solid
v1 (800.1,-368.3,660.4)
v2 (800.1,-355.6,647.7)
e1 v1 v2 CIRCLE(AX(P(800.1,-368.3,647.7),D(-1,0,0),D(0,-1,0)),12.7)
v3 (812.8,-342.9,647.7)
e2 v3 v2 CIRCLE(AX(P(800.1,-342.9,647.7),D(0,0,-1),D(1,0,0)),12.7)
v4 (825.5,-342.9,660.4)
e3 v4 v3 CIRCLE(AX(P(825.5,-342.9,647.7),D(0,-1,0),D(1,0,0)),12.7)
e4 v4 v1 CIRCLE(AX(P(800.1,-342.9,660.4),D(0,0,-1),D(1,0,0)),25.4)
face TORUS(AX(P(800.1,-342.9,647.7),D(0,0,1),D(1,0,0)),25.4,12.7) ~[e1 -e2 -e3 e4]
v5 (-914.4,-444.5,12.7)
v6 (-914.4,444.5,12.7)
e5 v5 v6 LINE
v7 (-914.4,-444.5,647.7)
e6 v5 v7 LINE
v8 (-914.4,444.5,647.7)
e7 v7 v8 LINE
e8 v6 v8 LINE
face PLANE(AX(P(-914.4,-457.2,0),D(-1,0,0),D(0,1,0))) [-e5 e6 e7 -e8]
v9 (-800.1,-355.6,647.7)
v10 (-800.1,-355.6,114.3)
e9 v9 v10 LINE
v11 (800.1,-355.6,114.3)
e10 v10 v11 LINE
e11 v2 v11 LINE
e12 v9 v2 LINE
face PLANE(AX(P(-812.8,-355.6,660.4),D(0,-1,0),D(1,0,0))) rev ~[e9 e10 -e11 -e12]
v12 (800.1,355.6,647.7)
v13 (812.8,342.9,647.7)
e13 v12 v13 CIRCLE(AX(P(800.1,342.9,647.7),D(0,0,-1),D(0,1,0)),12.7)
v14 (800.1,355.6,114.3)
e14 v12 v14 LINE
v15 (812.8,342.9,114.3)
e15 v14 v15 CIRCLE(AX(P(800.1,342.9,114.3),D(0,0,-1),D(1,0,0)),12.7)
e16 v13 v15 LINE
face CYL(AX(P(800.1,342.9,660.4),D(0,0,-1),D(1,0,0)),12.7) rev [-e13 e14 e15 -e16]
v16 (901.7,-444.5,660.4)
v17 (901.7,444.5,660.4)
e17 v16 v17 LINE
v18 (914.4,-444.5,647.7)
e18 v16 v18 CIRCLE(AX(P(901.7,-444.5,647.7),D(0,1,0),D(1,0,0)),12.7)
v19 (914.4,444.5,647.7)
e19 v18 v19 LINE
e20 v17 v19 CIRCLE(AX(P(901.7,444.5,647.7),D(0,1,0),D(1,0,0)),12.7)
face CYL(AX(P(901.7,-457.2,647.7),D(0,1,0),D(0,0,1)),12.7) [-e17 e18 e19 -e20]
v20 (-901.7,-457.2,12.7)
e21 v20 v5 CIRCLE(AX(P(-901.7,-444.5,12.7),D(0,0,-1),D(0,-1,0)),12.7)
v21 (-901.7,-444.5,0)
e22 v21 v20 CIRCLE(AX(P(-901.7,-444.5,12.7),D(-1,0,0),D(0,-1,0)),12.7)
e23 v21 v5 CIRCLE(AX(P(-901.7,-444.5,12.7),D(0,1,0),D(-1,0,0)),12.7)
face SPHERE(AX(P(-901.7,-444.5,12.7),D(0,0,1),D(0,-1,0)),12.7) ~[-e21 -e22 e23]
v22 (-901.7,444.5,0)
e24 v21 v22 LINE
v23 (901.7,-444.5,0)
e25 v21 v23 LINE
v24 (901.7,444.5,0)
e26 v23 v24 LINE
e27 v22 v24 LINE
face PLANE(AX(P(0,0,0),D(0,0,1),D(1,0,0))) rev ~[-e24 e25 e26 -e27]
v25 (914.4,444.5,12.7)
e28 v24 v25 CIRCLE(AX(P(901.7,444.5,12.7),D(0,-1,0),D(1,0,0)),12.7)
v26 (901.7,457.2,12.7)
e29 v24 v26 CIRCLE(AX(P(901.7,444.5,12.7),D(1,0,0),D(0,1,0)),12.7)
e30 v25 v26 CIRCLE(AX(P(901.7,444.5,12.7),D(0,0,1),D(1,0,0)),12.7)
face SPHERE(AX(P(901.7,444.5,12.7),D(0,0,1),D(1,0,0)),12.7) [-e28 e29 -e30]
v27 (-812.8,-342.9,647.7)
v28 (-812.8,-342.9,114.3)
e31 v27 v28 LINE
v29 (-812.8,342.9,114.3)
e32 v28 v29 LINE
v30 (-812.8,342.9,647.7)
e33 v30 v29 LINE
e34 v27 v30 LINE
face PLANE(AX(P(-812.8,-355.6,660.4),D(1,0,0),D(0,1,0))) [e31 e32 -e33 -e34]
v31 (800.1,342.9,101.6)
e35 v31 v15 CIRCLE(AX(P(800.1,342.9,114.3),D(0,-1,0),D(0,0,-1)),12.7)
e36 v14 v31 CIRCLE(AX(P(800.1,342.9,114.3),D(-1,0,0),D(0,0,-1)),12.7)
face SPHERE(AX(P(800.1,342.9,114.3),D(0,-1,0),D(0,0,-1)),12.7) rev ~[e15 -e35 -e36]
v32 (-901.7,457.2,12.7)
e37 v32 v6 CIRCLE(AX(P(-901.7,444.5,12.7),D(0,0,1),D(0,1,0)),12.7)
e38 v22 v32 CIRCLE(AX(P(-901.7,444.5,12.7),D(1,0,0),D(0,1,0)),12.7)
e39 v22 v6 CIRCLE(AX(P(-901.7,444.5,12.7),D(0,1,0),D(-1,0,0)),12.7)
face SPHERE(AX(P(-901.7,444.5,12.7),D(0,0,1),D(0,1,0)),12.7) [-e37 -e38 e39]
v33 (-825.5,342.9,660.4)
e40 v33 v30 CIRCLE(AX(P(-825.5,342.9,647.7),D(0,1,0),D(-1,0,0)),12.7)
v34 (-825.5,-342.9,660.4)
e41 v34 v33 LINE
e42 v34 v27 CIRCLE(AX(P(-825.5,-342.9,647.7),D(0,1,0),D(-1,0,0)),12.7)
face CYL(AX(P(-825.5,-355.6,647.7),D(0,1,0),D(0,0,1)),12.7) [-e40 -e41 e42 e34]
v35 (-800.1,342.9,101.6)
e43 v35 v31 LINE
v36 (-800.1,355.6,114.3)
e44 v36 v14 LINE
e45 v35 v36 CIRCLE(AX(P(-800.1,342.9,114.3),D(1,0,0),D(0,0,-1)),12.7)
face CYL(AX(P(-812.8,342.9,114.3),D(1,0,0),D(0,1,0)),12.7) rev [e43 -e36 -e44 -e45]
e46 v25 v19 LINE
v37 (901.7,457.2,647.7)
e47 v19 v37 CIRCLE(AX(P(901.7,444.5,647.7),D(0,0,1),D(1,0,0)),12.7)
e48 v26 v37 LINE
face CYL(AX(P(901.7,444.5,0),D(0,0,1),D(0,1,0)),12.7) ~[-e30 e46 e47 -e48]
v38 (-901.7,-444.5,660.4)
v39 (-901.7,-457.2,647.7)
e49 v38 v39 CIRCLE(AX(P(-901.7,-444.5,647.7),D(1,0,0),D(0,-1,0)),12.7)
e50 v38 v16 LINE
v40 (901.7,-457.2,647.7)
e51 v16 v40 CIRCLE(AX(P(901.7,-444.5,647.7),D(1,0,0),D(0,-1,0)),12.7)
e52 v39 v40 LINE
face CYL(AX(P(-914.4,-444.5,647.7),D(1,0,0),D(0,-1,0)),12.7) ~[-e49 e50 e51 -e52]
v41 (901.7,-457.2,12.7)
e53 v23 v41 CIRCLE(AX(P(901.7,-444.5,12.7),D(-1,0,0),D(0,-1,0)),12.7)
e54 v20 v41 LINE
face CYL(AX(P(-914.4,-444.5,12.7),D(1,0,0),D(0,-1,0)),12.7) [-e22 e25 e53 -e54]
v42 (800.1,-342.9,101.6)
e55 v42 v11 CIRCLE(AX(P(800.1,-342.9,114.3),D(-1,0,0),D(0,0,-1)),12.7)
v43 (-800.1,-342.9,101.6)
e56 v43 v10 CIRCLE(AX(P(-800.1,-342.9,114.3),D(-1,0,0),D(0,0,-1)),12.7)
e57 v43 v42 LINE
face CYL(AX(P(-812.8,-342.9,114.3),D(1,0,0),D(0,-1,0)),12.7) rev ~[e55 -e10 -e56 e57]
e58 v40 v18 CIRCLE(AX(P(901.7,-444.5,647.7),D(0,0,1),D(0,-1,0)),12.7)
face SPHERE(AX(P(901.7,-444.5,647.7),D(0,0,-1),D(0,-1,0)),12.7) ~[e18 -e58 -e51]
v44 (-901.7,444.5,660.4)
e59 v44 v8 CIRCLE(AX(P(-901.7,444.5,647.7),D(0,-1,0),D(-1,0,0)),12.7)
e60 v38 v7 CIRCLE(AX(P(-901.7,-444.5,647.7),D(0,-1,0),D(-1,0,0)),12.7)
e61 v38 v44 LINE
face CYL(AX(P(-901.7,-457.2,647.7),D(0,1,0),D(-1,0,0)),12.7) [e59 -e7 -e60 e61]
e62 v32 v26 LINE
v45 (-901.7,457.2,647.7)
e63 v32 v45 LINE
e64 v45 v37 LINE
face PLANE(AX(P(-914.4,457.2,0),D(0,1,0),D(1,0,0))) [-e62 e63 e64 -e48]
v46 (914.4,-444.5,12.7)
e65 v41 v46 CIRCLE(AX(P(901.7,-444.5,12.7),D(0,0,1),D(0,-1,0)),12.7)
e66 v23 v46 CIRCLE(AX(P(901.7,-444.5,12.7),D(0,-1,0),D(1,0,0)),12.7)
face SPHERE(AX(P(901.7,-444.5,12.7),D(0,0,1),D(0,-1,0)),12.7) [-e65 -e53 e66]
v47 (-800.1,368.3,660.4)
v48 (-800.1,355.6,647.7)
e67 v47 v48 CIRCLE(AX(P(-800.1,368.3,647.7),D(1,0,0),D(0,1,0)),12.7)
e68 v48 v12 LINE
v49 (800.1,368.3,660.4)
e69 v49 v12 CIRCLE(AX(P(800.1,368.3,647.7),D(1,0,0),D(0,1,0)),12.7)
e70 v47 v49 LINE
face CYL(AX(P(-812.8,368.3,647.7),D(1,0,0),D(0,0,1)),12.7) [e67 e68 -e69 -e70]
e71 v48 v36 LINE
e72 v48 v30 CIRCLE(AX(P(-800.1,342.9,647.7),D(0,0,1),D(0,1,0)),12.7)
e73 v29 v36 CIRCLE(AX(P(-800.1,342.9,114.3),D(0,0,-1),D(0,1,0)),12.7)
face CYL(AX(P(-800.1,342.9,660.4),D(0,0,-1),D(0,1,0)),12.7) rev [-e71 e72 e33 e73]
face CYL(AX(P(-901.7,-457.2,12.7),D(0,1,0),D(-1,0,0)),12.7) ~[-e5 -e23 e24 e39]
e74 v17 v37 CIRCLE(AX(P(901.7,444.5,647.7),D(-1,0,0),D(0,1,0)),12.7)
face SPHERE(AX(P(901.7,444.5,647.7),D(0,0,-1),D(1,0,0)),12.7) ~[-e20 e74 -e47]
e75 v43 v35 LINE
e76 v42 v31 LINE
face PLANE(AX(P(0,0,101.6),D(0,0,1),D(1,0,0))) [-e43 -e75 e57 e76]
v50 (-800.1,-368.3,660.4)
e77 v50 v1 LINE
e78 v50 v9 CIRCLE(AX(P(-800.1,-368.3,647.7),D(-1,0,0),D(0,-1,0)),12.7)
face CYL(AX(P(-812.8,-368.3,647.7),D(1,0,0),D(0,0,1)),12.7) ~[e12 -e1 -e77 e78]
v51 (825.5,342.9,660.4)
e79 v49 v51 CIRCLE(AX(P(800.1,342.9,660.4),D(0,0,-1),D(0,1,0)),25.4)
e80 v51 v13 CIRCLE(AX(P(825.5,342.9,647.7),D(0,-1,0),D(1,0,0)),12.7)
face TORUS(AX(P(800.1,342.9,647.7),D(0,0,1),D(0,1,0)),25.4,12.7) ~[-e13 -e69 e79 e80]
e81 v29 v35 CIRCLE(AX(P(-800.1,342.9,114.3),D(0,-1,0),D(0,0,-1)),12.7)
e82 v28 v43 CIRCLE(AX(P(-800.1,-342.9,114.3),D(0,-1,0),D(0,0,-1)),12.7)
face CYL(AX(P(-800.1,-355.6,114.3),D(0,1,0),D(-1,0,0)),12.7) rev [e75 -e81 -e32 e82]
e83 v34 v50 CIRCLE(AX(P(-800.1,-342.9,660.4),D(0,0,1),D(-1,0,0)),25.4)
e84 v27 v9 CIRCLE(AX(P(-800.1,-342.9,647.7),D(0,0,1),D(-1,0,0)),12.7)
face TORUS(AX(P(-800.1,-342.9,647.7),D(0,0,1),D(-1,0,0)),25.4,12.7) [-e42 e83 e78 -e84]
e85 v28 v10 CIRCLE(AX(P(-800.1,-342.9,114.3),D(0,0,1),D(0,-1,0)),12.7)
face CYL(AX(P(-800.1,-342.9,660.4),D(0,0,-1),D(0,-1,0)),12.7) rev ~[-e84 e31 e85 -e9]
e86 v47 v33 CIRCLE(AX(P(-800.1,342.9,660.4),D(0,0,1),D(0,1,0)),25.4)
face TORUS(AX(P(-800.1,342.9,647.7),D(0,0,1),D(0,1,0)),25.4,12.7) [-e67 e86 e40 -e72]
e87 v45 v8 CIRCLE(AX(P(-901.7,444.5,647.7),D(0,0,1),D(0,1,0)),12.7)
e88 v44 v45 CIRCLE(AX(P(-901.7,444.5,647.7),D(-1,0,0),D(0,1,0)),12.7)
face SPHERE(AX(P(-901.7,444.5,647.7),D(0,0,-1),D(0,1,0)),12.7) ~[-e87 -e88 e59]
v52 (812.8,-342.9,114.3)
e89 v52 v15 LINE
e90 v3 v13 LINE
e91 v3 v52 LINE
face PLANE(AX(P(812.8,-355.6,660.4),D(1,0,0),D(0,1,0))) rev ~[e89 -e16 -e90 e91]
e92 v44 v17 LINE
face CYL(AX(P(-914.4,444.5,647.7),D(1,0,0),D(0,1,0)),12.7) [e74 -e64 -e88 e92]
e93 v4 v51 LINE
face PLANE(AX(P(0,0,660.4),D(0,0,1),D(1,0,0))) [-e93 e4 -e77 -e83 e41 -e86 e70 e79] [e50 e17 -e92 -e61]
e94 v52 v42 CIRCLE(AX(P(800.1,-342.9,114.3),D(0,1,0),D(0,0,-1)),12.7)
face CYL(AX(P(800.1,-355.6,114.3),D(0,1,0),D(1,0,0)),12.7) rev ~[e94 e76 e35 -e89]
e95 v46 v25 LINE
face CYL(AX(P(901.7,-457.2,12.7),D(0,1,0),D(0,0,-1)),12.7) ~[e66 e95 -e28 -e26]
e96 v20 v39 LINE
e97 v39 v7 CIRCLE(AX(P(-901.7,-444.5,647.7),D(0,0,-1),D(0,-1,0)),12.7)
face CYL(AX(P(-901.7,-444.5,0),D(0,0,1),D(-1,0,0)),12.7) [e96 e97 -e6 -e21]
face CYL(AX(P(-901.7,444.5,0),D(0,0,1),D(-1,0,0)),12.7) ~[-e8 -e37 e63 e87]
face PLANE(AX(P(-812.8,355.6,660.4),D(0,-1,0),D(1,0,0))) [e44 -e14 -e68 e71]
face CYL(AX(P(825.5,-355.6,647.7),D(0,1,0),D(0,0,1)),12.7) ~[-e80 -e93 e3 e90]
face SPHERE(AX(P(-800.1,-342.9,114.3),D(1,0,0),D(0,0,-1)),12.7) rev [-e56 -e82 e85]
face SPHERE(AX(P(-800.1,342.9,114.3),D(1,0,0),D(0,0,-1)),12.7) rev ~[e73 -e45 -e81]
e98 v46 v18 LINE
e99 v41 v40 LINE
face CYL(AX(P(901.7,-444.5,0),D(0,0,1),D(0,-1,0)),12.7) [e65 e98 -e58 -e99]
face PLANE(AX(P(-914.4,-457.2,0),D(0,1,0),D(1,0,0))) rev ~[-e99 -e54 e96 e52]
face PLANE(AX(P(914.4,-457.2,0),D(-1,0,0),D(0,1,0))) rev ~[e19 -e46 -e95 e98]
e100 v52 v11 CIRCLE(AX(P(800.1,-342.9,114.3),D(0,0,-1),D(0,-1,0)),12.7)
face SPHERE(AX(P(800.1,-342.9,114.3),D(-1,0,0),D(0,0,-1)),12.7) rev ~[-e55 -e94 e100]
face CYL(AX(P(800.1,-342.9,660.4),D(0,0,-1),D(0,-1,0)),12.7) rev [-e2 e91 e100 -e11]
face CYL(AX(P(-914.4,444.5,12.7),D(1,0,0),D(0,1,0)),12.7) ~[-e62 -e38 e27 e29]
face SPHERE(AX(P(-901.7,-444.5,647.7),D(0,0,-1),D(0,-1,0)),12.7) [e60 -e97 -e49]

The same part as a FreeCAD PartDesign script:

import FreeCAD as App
import Part
import Sketcher
from FreeCAD import Vector
Q = App.Units.Quantity


def add_polygon(sketch, points):
    """Adds a closed chain of lines whose ends are joined by coincident constraints."""
    first, n = sketch.GeometryCount, len(points)
    for a, b in zip(points, points[1:] + points[:1]):
        sketch.addGeometry(Part.LineSegment(App.Vector(*a, 0), App.Vector(*b, 0)), False)
    for i in range(n):
        sketch.addConstraint(Sketcher.Constraint("Coincident", first + i, 2, first + (i + 1) % n, 1))

doc = App.newDocument("Part")
body = doc.addObject("PartDesign::Body", "Body")

# Sketch on XY plane
sketch1 = body.newObject("Sketcher::SketchObject", "Sketch")
sketch1.AttachmentSupport = (doc.getObject("XY_Plane"), [""])
sketch1.MapMode = "FlatFace"
add_polygon(sketch1, [(-914, 457), (-914, -457), (914, -457), (914, 457)])  # lines 0-3
sketch1.addConstraint([
    Sketcher.Constraint("Vertical", 0),
    Sketcher.Constraint("Horizontal", 1),
    Sketcher.Constraint("Vertical", 2),
    Sketcher.Constraint("Horizontal", 3),
    Sketcher.Constraint("Symmetric", 0, 2, 2, 2, -1, 1),
    Sketcher.Constraint("DistanceX", 1, 1, 1, 2, Q("72 in")),
    Sketcher.Constraint("DistanceY", 0, 2, 0, 1, Q("36 in")),
])
pad1 = body.newObject("PartDesign::Pad", "Pad")
pad1.Profile = sketch1
pad1.Length = Q("26 in")

# Sketch on XY plane
sketch2 = body.newObject("Sketcher::SketchObject", "Sketch001")
sketch2.AttachmentSupport = (doc.getObject("XY_Plane"), [""])
sketch2.MapMode = "FlatFace"
sketch2.AttachmentOffset = App.Placement(Vector(0, 0, 26 * 25.4), App.Rotation())
add_polygon(sketch2, [(-813, 356), (-813, -356), (813, -356), (813, 356)])  # lines 0-3
sketch2.addConstraint([
    Sketcher.Constraint("Vertical", 0),
    Sketcher.Constraint("Horizontal", 1),
    Sketcher.Constraint("Vertical", 2),
    Sketcher.Constraint("Horizontal", 3),
    Sketcher.Constraint("Symmetric", 0, 2, 2, 2, -1, 1),
    Sketcher.Constraint("DistanceX", 1, 1, 1, 2, Q("64 in")),
    Sketcher.Constraint("DistanceY", 0, 2, 0, 1, Q("28 in")),
])
pocket1 = body.newObject("PartDesign::Pocket", "Pocket")
pocket1.Profile = sketch2
pocket1.Length = Q("22 in")
doc.recompute()

fillet = body.newObject("PartDesign::Fillet", "Fillet")
fillet.Base = (pocket1, ["Edge1"])
fillet.UseAllEdges = True
fillet.Radius = Q("0.5 in")

doc.recompute()
